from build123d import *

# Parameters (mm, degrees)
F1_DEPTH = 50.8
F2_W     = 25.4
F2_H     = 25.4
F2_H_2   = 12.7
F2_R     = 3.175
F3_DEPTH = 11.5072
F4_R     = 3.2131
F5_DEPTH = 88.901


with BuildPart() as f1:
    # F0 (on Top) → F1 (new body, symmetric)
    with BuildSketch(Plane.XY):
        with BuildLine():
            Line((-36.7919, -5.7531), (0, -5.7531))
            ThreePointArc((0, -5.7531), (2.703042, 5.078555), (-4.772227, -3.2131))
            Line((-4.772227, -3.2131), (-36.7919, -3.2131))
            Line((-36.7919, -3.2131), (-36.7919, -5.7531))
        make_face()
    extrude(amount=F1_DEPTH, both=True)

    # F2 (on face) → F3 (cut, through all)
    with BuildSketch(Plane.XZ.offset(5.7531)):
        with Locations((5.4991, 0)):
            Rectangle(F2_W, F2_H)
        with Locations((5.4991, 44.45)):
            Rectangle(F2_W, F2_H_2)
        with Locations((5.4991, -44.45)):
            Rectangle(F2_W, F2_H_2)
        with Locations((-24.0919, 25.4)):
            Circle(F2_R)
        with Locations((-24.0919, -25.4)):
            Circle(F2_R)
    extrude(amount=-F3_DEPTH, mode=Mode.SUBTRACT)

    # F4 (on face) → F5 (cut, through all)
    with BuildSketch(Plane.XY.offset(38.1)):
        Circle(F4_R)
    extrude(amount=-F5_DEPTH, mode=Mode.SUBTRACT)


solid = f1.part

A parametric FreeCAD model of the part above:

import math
import FreeCAD as App
import Part
import Sketcher

V = App.Vector
Q = App.Units.Quantity


def add_polygon(sketch, points):
    """Adds a closed chain of lines whose ends are joined by coincident constraints."""
    first, n = sketch.GeometryCount, len(points)
    for a, b in zip(points, points[1:] + points[:1]):
        sketch.addGeometry(Part.LineSegment(App.Vector(*a, 0), App.Vector(*b, 0)), False)
    for i in range(n):
        sketch.addConstraint(Sketcher.Constraint("Coincident", first + i, 2, first + (i + 1) % n, 1))

doc = App.newDocument("Part")
body = doc.addObject("PartDesign::Body", "Body")

sketch1 = body.newObject("Sketcher::SketchObject", "Sketch")
sketch1.AttachmentSupport = (doc.getObject("XY_Plane"), [""])
sketch1.MapMode = "FlatFace"
sketch1.addGeometry(Part.LineSegment(V(-36.8, -5.8, 0), V(0, -5.8, 0)), False)
sketch1.addGeometry(Part.ArcOfCircle(Part.Circle(V(0, 0, 0), V(0, 0, 1), 5.8), math.radians(-90), math.radians(214)), False)
sketch1.addGeometry(Part.LineSegment(V(-4.8, -3.2, 0), V(-36.8, -3.2, 0)), False)
sketch1.addGeometry(Part.LineSegment(V(-36.8, -3.2, 0), V(-36.8, -5.8, 0)), False)
sketch1.addConstraint(Sketcher.Constraint("Tangent", 0, 2, 1, 1))
sketch1.addConstraint(Sketcher.Constraint("Coincident", 1, 2, 2, 1))
sketch1.addConstraint(Sketcher.Constraint("Coincident", 2, 2, 3, 1))
sketch1.addConstraint(Sketcher.Constraint("Coincident", 3, 2, 0, 1))
sketch1.addConstraint(Sketcher.Constraint("Horizontal", 0))
sketch1.addConstraint(Sketcher.Constraint("Horizontal", 2))
sketch1.addConstraint(Sketcher.Constraint("Vertical", 3))
sketch1.addConstraint(Sketcher.Constraint("Coincident", 1, 3, -1, 1))
sketch1.addConstraint(Sketcher.Constraint("DistanceY", 3, 2, 3, 1, Q("0.1 in")))
sketch1.addConstraint(Sketcher.Constraint("Radius", 1, Q("0.2265 in")))
sketch1.addConstraint(Sketcher.Constraint("DistanceX", 0, 1, 0, 2, Q("1.4485 in")))
pad1 = body.newObject("PartDesign::Pad", "Pad")
pad1.Profile = sketch1
pad1.Length = Q("4 in")
pad1.Midplane = True

sketch2 = body.newObject("Sketcher::SketchObject", "Sketch001")
sketch2.AttachmentSupport = (doc.getObject("XZ_Plane"), [""])
sketch2.MapMode = "FlatFace"
sketch2.AttachmentOffset = App.Placement(V(0, 0, 0.2265 * 25.4), App.Rotation())
add_polygon(sketch2, [(-7.2, 12.7), (-7.2, -12.7), (18.2, -12.7), (18.2, 12.7)])
add_polygon(sketch2, [(-7.2, 50.8), (-7.2, 38.1), (18.2, 38.1), (18.2, 50.8)])
add_polygon(sketch2, [(-7.2, -38.1), (-7.2, -50.8), (18.2, -50.8), (18.2, -38.1)])
sketch2.addGeometry(Part.Circle(V(-24.1, 25.4, 0), V(0, 0, 1), 3.2), False)
sketch2.addGeometry(Part.Circle(V(-24.1, -25.4, 0), V(0, 0, 1), 3.2), False)
sketch2.addConstraint(Sketcher.Constraint("Vertical", 0))
sketch2.addConstraint(Sketcher.Constraint("Horizontal", 1))
sketch2.addConstraint(Sketcher.Constraint("Vertical", 2))
sketch2.addConstraint(Sketcher.Constraint("Horizontal", 3))
sketch2.addConstraint(Sketcher.Constraint("Vertical", 4))
sketch2.addConstraint(Sketcher.Constraint("Horizontal", 5))
sketch2.addConstraint(Sketcher.Constraint("Vertical", 6))
sketch2.addConstraint(Sketcher.Constraint("Horizontal", 7))
sketch2.addConstraint(Sketcher.Constraint("Vertical", 8))
sketch2.addConstraint(Sketcher.Constraint("Horizontal", 9))
sketch2.addConstraint(Sketcher.Constraint("Vertical", 10))
sketch2.addConstraint(Sketcher.Constraint("Horizontal", 11))
sketch2.addConstraint(Sketcher.Constraint("Equal", 12, 13))
sketch2.addConstraint(Sketcher.Constraint("Symmetric", 12, 3, 13, 3, -1))
sketch2.addConstraint(Sketcher.Constraint("Symmetric", 7, 2, 8, 2, -1))
sketch2.addConstraint(Sketcher.Constraint("Symmetric", 5, 2, 10, 2, -1))
sketch2.addConstraint(Sketcher.Constraint("Vertical", 3, 2, 4, 2))
sketch2.addConstraint(Sketcher.Constraint("Vertical", 2, 2, 5, 2))
sketch2.addConstraint(Sketcher.Constraint("Equal", 11, 0))
sketch2.addConstraint(Sketcher.Constraint("Diameter", 12, Q("0.25 in")))
sketch2.addConstraint(Sketcher.Constraint("DistanceX", 1, 1, 1, 2, Q("1 in")))
sketch2.addConstraint(Sketcher.Constraint("DistanceY", 4, 2, 4, 1, Q("0.5 in")))
sketch2.addConstraint(Sketcher.Constraint("DistanceY", -1, 1, 12, 3, Q("1 in")))
sketch2.addConstraint(Sketcher.Constraint("DistanceY", -1, 1, 6, 2, Q("2 in")))
sketch2.addConstraint(Sketcher.Constraint("DistanceY", 3, 2, 4, 2, Q("1 in")))
sketch2.addConstraint(Sketcher.Constraint("DistanceX", 13, 3, 0, 2, Q("0.665 in")))
sketch2.addConstraint(Sketcher.Constraint("DistanceX", 12, 3, -1, 1, Q("0.9485 in")))
pocket1 = body.newObject("PartDesign::Pocket", "Pocket")
pocket1.Profile = sketch2
pocket1.Type = "ThroughAll"

sketch3 = body.newObject("Sketcher::SketchObject", "Sketch002")
sketch3.AttachmentSupport = (doc.getObject("XY_Plane"), [""])
sketch3.MapMode = "FlatFace"
sketch3.AttachmentOffset = App.Placement(V(0, 0, 1.5 * 25.4), App.Rotation())
sketch3.addGeometry(Part.Circle(V(0, 0, 0), V(0, 0, 1), 3.2), False)
sketch3.addConstraint(Sketcher.Constraint("Coincident", 0, 3, -1, 1))
sketch3.addConstraint(Sketcher.Constraint("Diameter", 0, Q("0.253 in")))
pocket2 = body.newObject("PartDesign::Pocket", "Pocket001")
pocket2.Profile = sketch3
pocket2.Type = "ThroughAll"

doc.recompute()
